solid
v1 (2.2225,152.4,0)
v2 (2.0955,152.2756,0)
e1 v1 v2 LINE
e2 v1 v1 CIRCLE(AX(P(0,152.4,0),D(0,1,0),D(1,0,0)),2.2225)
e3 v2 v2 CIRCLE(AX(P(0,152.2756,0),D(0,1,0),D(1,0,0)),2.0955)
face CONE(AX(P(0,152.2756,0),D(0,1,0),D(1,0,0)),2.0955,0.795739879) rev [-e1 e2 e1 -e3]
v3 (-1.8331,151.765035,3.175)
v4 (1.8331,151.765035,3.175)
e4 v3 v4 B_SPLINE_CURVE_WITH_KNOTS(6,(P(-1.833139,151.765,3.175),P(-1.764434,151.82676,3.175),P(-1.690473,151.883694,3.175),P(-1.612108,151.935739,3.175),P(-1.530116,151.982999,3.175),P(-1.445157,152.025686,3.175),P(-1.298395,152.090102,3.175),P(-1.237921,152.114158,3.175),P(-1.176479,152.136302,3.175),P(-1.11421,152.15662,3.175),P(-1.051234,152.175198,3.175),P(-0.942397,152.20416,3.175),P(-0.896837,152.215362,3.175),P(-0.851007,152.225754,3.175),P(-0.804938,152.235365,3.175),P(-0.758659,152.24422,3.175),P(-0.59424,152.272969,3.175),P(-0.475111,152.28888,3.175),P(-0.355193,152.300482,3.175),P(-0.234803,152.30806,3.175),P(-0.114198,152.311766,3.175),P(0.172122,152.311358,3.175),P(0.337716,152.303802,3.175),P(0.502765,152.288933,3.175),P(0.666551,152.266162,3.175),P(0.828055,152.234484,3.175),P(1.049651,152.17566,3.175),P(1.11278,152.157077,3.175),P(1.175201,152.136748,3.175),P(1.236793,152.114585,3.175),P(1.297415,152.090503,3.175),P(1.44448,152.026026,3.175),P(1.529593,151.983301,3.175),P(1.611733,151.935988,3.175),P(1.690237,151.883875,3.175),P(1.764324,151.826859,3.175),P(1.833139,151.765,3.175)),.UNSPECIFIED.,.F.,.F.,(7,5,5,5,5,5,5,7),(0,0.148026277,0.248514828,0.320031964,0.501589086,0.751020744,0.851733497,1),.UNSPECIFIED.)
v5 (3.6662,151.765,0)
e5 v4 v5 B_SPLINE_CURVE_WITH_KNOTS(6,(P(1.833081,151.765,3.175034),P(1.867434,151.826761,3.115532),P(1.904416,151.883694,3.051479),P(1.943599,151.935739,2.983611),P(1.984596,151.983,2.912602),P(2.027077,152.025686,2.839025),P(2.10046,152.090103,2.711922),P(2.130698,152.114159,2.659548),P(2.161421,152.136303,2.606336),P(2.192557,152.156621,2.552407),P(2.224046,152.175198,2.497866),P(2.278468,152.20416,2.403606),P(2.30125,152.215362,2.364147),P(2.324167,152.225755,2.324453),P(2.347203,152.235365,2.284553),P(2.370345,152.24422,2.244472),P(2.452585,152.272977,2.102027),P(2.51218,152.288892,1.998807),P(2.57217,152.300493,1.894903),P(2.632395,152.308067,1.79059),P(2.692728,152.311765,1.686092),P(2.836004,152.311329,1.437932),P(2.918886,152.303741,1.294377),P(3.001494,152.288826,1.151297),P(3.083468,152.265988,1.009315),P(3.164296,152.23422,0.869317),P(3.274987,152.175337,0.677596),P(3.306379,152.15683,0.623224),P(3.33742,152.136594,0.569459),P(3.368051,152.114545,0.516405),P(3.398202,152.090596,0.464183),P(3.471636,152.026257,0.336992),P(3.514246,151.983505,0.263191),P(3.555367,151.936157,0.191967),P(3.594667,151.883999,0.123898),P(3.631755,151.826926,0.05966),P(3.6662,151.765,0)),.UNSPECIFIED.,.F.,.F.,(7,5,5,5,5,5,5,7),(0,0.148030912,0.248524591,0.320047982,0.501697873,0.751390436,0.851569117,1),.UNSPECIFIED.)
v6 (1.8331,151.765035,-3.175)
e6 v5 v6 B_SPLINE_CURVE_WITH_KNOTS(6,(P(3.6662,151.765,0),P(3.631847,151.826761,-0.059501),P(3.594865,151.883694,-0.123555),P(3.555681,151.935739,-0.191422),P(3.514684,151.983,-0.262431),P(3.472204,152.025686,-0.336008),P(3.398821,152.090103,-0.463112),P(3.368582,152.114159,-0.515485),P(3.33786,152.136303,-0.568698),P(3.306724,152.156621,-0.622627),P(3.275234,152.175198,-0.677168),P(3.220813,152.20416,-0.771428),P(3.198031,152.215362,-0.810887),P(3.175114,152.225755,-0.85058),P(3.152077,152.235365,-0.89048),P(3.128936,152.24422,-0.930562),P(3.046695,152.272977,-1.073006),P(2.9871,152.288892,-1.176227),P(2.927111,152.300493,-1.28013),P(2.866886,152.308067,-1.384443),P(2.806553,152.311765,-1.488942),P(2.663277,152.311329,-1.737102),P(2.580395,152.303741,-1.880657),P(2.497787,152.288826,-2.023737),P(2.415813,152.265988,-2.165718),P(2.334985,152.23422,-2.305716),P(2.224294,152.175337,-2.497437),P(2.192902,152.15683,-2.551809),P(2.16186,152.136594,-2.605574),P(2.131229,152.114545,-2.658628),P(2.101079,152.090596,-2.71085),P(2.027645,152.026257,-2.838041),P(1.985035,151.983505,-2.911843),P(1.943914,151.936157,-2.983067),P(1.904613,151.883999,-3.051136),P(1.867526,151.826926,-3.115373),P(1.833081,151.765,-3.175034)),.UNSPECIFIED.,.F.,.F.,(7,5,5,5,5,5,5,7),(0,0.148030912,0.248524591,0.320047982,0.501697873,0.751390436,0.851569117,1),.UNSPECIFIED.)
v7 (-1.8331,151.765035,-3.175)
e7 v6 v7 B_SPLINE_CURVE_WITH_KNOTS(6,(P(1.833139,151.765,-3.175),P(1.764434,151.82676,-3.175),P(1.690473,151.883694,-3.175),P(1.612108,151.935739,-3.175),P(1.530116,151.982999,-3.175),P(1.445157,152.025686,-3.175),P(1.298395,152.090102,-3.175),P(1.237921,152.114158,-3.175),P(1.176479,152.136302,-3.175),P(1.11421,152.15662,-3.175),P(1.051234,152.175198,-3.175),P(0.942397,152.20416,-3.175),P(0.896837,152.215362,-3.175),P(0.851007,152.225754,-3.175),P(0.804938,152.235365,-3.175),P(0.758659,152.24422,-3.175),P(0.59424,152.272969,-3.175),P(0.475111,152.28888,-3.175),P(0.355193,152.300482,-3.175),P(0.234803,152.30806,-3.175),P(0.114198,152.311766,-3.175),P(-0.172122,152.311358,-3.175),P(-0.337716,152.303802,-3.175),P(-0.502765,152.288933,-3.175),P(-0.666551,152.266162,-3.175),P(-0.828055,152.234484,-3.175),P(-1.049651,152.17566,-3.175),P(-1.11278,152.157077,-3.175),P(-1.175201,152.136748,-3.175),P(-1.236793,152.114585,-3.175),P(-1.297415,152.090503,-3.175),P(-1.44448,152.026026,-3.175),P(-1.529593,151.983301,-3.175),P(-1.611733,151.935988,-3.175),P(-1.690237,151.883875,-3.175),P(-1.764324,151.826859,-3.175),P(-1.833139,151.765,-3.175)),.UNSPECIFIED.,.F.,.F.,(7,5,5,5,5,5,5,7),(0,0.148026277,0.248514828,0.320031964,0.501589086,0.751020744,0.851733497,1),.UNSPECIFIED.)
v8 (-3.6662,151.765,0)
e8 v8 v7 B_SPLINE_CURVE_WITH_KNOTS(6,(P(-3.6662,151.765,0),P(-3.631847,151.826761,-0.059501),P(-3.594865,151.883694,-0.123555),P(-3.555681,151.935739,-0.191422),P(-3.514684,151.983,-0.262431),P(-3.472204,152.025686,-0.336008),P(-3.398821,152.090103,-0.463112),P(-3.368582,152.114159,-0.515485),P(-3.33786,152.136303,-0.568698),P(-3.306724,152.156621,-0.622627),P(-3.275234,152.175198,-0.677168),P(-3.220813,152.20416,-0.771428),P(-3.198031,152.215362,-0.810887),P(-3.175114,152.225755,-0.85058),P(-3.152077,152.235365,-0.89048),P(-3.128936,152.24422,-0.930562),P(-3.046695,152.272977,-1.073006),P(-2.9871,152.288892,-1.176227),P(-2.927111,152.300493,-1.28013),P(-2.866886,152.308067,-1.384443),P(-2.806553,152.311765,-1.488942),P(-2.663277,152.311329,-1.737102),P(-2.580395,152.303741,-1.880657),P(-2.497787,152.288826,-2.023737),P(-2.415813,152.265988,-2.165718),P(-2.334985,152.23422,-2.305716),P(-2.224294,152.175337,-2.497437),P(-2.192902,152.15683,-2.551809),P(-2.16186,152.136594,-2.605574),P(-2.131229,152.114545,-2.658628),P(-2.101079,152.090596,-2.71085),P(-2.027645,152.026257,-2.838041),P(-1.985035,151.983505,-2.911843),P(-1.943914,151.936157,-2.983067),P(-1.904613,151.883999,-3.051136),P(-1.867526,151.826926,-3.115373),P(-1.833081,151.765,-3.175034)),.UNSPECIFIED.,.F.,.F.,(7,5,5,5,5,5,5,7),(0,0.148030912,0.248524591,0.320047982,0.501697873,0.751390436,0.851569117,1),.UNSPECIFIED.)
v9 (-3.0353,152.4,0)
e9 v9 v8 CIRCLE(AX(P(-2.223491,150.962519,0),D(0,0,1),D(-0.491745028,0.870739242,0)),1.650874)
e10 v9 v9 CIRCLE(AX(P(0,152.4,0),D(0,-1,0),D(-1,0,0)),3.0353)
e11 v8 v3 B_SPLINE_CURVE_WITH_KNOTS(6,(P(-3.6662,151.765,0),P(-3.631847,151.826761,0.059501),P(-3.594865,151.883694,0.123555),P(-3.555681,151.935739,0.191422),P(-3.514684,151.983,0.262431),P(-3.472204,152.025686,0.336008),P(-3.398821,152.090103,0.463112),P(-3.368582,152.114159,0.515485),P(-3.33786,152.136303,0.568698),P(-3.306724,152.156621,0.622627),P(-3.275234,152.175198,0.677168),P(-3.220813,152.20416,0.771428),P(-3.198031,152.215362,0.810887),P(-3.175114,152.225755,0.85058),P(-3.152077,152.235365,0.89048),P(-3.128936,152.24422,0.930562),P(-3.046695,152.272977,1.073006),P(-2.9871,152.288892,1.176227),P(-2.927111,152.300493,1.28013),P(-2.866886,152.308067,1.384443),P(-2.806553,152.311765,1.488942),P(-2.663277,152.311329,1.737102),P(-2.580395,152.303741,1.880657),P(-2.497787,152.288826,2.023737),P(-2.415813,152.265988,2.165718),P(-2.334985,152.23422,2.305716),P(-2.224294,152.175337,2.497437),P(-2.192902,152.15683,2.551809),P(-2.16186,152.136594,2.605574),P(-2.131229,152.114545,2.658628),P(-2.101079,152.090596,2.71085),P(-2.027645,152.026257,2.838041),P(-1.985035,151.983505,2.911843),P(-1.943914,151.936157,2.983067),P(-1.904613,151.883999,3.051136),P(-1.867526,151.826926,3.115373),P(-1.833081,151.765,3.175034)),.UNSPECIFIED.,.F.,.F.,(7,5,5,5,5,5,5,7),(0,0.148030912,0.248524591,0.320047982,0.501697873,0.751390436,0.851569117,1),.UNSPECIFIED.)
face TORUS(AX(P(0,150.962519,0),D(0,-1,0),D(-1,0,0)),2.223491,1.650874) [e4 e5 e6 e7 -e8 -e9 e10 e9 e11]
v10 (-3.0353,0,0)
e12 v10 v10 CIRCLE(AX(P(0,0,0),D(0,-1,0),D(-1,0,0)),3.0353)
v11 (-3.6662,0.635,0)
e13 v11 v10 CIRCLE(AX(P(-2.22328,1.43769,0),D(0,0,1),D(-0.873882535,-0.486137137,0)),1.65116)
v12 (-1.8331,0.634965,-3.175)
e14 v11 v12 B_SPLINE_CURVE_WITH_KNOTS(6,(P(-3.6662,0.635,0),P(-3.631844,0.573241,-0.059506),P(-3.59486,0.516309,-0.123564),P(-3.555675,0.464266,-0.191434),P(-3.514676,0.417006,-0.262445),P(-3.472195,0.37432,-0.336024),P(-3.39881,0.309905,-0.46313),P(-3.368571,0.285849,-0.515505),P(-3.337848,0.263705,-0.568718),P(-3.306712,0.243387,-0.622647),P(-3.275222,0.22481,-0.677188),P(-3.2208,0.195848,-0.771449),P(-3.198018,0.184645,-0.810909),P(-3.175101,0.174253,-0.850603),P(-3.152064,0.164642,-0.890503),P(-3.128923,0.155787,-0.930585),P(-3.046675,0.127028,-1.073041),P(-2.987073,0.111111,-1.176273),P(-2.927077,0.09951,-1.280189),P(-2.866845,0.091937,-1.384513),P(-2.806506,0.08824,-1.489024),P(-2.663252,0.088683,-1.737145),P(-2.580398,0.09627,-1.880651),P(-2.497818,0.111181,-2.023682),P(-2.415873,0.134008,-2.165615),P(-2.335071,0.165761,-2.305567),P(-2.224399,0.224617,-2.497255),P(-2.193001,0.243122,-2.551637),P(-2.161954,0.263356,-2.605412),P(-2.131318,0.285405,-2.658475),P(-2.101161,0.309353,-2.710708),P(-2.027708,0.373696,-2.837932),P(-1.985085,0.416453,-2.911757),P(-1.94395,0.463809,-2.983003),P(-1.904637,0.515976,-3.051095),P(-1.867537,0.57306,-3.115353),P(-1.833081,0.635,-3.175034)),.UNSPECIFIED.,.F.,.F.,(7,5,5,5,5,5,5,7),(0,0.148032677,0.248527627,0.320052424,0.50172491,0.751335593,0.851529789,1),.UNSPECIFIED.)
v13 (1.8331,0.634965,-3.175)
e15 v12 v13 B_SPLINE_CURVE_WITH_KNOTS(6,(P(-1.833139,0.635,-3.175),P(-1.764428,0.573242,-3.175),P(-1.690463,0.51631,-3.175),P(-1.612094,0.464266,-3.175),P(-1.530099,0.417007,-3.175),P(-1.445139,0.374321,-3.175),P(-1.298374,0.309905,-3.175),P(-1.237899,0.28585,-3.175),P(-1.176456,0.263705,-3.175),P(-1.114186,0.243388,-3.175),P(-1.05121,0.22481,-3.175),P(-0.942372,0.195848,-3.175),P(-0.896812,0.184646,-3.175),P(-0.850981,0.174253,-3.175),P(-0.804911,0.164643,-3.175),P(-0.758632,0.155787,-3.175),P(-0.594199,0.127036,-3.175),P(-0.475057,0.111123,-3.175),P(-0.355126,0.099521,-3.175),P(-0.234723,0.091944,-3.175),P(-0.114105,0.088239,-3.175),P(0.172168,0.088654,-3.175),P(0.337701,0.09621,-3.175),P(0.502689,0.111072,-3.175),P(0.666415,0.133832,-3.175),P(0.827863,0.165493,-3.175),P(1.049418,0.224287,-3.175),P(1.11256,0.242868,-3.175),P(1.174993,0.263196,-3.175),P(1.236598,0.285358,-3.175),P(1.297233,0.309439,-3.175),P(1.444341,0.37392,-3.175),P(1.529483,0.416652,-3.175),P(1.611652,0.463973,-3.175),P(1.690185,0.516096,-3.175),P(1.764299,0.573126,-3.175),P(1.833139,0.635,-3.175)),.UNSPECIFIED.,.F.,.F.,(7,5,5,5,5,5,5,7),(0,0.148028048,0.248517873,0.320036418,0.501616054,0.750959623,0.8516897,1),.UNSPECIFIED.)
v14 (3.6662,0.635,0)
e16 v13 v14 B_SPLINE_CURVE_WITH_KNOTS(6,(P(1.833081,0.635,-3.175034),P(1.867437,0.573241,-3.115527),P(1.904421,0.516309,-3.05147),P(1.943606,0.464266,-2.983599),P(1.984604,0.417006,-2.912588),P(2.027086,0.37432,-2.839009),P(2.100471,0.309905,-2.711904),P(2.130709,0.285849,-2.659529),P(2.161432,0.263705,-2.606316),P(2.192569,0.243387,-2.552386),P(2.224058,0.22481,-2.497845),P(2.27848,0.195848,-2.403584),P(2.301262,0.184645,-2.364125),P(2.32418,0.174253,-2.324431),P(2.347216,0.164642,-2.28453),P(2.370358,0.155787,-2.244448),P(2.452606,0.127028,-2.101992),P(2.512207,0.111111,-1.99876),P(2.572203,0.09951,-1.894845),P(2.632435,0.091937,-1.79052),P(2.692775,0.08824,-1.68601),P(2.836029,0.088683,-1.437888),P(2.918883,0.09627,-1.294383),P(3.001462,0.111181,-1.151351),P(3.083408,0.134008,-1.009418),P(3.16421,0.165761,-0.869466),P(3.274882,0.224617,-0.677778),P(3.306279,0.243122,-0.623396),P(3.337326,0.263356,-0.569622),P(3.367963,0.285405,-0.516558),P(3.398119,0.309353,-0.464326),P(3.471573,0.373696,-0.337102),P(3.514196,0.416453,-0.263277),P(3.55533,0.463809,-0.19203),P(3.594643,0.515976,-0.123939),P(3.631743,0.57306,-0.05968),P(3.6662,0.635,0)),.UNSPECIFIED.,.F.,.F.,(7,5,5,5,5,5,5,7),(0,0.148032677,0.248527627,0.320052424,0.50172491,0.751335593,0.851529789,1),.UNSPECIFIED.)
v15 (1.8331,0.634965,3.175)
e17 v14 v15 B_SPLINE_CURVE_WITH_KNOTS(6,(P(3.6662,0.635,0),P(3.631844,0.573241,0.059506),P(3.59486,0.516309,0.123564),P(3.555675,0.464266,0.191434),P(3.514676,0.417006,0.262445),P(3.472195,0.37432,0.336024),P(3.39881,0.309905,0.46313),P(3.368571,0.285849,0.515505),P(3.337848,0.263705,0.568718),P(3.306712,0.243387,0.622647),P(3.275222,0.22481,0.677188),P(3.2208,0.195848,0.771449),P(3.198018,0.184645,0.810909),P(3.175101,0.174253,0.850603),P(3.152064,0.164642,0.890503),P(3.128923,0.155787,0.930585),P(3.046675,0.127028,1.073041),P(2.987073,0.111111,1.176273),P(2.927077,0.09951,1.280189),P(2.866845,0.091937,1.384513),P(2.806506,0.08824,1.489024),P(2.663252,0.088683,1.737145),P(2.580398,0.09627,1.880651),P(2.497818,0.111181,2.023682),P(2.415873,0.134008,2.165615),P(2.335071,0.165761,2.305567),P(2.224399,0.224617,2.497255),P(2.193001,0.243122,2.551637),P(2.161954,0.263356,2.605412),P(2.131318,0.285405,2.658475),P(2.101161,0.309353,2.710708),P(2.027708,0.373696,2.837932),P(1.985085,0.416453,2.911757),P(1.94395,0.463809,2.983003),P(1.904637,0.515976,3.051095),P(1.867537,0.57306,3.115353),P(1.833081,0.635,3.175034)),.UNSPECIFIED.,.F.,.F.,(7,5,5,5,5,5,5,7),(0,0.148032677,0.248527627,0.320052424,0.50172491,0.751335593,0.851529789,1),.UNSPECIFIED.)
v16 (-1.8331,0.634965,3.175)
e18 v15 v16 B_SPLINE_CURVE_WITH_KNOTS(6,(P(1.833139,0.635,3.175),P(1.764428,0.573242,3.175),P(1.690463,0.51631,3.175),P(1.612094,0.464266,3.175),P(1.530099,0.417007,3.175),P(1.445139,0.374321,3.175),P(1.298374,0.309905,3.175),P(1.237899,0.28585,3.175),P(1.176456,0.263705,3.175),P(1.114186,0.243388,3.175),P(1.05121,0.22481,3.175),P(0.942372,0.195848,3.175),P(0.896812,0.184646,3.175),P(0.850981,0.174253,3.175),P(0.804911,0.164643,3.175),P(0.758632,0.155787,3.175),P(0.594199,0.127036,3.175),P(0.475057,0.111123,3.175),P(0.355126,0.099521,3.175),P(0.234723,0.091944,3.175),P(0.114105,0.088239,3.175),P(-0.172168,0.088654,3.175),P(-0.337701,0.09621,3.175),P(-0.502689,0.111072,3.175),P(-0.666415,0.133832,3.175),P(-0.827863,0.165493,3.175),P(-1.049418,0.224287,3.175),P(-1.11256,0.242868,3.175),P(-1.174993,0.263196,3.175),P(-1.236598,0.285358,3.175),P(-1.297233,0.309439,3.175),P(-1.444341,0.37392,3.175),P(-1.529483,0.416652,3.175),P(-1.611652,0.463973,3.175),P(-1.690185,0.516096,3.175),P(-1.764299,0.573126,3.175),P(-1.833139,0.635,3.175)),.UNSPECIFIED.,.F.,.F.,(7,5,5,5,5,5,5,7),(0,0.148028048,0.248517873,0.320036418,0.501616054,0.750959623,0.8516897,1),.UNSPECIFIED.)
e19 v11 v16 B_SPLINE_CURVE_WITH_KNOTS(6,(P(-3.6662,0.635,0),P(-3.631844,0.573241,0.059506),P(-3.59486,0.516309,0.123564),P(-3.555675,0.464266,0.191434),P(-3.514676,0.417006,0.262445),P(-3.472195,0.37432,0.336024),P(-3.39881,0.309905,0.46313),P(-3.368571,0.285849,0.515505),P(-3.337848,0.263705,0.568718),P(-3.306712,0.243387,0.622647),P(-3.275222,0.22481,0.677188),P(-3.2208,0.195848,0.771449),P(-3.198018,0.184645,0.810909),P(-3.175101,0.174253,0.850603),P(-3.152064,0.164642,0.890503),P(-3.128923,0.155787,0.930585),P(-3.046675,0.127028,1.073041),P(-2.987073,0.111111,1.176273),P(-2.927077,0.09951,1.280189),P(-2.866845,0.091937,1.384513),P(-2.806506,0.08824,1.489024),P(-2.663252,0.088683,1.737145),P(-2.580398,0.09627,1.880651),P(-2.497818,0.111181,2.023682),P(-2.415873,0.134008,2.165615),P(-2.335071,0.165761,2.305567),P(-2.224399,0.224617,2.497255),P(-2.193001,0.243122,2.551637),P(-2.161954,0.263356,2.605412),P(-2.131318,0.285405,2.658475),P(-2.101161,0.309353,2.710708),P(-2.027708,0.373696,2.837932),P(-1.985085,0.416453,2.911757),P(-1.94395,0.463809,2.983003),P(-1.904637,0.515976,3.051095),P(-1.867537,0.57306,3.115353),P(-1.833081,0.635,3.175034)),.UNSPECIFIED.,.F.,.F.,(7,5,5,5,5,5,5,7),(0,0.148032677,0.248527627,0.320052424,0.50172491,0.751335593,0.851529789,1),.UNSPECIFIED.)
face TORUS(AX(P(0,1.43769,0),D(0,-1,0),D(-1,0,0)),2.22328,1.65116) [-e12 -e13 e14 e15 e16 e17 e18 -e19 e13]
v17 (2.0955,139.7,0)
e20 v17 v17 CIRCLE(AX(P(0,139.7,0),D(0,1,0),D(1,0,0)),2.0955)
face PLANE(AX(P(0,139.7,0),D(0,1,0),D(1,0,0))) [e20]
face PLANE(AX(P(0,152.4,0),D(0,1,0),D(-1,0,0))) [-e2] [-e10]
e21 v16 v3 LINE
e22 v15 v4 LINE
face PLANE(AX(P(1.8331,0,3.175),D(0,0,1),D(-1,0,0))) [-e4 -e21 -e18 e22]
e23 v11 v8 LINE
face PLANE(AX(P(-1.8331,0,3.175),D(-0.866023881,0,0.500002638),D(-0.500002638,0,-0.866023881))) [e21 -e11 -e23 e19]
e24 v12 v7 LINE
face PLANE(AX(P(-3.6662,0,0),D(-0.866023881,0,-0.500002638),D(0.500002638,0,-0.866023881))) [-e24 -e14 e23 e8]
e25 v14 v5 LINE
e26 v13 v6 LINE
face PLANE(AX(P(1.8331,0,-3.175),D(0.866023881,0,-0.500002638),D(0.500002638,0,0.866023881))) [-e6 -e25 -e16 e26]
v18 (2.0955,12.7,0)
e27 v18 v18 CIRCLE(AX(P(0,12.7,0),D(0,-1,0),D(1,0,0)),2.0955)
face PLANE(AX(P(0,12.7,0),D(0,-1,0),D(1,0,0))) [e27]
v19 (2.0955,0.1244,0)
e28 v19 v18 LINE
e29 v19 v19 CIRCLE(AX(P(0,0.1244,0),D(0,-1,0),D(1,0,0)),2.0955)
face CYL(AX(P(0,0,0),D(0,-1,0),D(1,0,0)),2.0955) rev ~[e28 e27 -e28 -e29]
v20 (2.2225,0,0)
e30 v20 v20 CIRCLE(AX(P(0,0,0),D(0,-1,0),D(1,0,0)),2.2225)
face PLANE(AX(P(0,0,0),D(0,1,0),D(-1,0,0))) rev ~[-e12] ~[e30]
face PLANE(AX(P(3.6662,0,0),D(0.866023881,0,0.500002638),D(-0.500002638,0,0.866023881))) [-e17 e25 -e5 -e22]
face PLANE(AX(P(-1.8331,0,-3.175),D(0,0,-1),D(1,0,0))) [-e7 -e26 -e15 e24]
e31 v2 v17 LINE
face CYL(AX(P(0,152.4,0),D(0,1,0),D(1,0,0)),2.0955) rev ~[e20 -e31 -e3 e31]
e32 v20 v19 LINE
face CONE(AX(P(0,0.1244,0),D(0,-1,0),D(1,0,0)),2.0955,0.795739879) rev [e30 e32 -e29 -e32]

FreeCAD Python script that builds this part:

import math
import FreeCAD as App
import Part
import Sketcher

V = App.Vector
Q = App.Units.Quantity


def edges_at(feature, points):
    """Names of the edges that pass closest to the given points."""
    edges = feature.Shape.Edges
    near = lambda p: min(range(len(edges)), key=lambda i: edges[i].distToShape(Part.Vertex(*p))[0])
    return sorted({f"Edge{near(p) + 1}" for p in points})

doc = App.newDocument("Part")
body = doc.addObject("PartDesign::Body", "Body")

sketch1 = body.newObject("Sketcher::SketchObject", "Sketch")
sketch1.AttachmentSupport = (doc.getObject("XZ_Plane"), [""])
sketch1.MapMode = "FlatFace"
sketch1.addGeometry([
    Part.LineSegment(V(3.7, 0, 0), V(1.8, -3.2, 0)),
    Part.LineSegment(V(1.8, -3.2, 0), V(-1.8, -3.2, 0)),
    Part.LineSegment(V(-1.8, -3.2, 0), V(-3.7, 0, 0)),
    Part.LineSegment(V(-3.7, 0, 0), V(-1.8, 3.2, 0)),
    Part.LineSegment(V(-1.8, 3.2, 0), V(1.8, 3.2, 0)),
    Part.LineSegment(V(1.8, 3.2, 0), V(3.7, 0, 0)),
], False)
sketch1.addConstraint([
    Sketcher.Constraint("Coincident", 0, 2, 1, 1),
    Sketcher.Constraint("Coincident", 1, 2, 2, 1),
    Sketcher.Constraint("Coincident", 2, 2, 3, 1),
    Sketcher.Constraint("Coincident", 3, 2, 4, 1),
    Sketcher.Constraint("Coincident", 4, 2, 5, 1),
    Sketcher.Constraint("Coincident", 5, 2, 0, 1),
    Sketcher.Constraint("Horizontal", 1),
    Sketcher.Constraint("Horizontal", 4),
    Sketcher.Constraint("Symmetric", 0, 2, 3, 2, -1, 1),
    Sketcher.Constraint("Symmetric", 2, 2, 5, 2, -1, 1),
    Sketcher.Constraint("PointOnObject", 2, 2, -1),
    Sketcher.Constraint("Parallel", 2, 5),
    Sketcher.Constraint("Vertical", 1, 2, 3, 2),
    Sketcher.Constraint("DistanceY", 1, 2, 3, 2, Q("0.25 in")),
    Sketcher.Constraint("Angle", 0, Q("-120.0002 deg")),
    Sketcher.Constraint("DistanceX", 1, 2, 1, 1, Q("3.6662 mm")),
])
pad1 = body.newObject("PartDesign::Pad", "Pad")
pad1.Profile = sketch1
pad1.Length = Q("6 in")
pad1.Reversed = True

sketch2 = body.newObject("Sketcher::SketchObject", "Sketch001")
sketch2.AttachmentSupport = (doc.getObject("XZ_Plane"), [""])
sketch2.MapMode = "FlatFace"
sketch2.AttachmentOffset = App.Placement(V(0, 0, -6 * 25.4), App.Rotation())
sketch2.addGeometry(Part.Circle(V(0, 0, 0), V(0, 0, 1), 2.1), False)
sketch2.addConstraint([
    Sketcher.Constraint("Coincident", 0, 3, -1, 1),
    Sketcher.Constraint("Diameter", 0, Q("0.165 in")),
])
pocket1 = body.newObject("PartDesign::Pocket", "Pocket")
pocket1.Profile = sketch2
pocket1.Length = Q("0.5 in")
pocket1.Reversed = True

sketch3 = body.newObject("Sketcher::SketchObject", "Sketch002")
sketch3.AttachmentSupport = (doc.getObject("XZ_Plane"), [""])
sketch3.MapMode = "FlatFace"
sketch3.addGeometry(Part.Circle(V(0, 0, 0), V(0, 0, 1), 2.1), False)
sketch3.addConstraint([
    Sketcher.Constraint("Coincident", 0, 3, -1, 1),
    Sketcher.Constraint("Diameter", 0, Q("0.165 in")),
])
pocket2 = body.newObject("PartDesign::Pocket", "Pocket001")
pocket2.Profile = sketch3
pocket2.Length = Q("0.5 in")
doc.recompute()

chamfer = body.newObject("PartDesign::Chamfer", "Chamfer")
chamfer.Base = (pocket2, edges_at(pocket2, [(-2.095, 152.4, 0)]))
chamfer.ChamferType = "Two distances"
chamfer.Size = Q("0.005 in")
chamfer.Size2 = Q("0.0048976 in")
doc.recompute()

chamfer2 = body.newObject("PartDesign::Chamfer", "Chamfer001")
chamfer2.Base = (chamfer, edges_at(chamfer, [(-2.095, 0, 0)]))
chamfer2.ChamferType = "Two distances"
chamfer2.Size = Q("0.005 in")
chamfer2.Size2 = Q("0.0048976 in")

sketch4 = body.newObject("Sketcher::SketchObject", "Sketch003")
sketch4.AttachmentSupport = (doc.getObject("XY_Plane"), [""])
sketch4.MapMode = "FlatFace"
sketch4.addGeometry([
    Part.LineSegment(V(0, 152.4, 0), V(-6.4, 154.4, 0)),
    Part.LineSegment(V(-6.4, 154.4, 0), V(-3.7, 151.8, 0)),
    Part.ArcOfCircle(Part.Circle(V(-2.2, 151, 0), V(0, 0, 1), 1.7), math.radians(119), math.radians(151)),
    Part.LineSegment(V(-3, 152.4, 0), V(0, 152.4, 0)),
], False)
sketch4.addConstraint([
    Sketcher.Constraint("Coincident", 0, 2, 1, 1),
    Sketcher.Constraint("Coincident", 1, 2, 2, 2),
    Sketcher.Constraint("Coincident", 2, 1, 3, 1),
    Sketcher.Constraint("Coincident", 3, 2, 0, 1),
    Sketcher.Constraint("Horizontal", 3),
    Sketcher.Constraint("PointOnObject", 3, 2, -2),
    Sketcher.Constraint("Radius", 2, Q("0.065 in")),
    Sketcher.Constraint("DistanceX", 3, 1, 3, 2, Q("0.1195 in")),
    Sketcher.Constraint("DistanceY", -1, 1, 2, 1, Q("6 in")),
    Sketcher.Constraint("DistanceY", 1, 2, 2, 1, Q("0.025 in")),
    Sketcher.Constraint("Angle", 0, Q("162.8302 deg")),
    Sketcher.Constraint("DistanceX", 0, 2, 1, 2, Q("0.106 in")),
    Sketcher.Constraint("DistanceY", -1, 1, 2, 3, Q("5.9434 in")),
])
groove = body.newObject("PartDesign::Groove", "Groove")
groove.Profile = sketch4
groove.ReferenceAxis = (sketch4, ["V_Axis"])
groove.Angle = 360

sketch5 = body.newObject("Sketcher::SketchObject", "Sketch004")
sketch5.AttachmentSupport = (doc.getObject("XY_Plane"), [""])
sketch5.MapMode = "FlatFace"
sketch5.addGeometry([
    Part.LineSegment(V(-4.1, -0.9, 0), V(0, 0, 0)),
    Part.LineSegment(V(0, 0, 0), V(-3, 0, 0)),
    Part.ArcOfCircle(Part.Circle(V(-2.2, 1.4, 0), V(0, 0, 1), 1.7), math.radians(-151), math.radians(-119)),
    Part.LineSegment(V(-3.7, 0.6, 0), V(-4.1, -0.9, 0)),
], False)
sketch5.addConstraint([
    Sketcher.Constraint("Coincident", 0, 2, 1, 1),
    Sketcher.Constraint("Coincident", 1, 2, 2, 2),
    Sketcher.Constraint("Coincident", 2, 1, 3, 1),
    Sketcher.Constraint("Coincident", 3, 2, 0, 1),
    Sketcher.Constraint("Horizontal", 1),
    Sketcher.Constraint("Coincident", 0, 2, -1, 1),
    Sketcher.Constraint("Radius", 2, Q("0.065 in")),
    Sketcher.Constraint("DistanceX", 1, 2, 1, 1, Q("0.1195 in")),
    Sketcher.Constraint("DistanceY", -1, 1, 2, 1, Q("0.025 in")),
    Sketcher.Constraint("Distance", 3, Q("0.0619 in")),
    Sketcher.Constraint("DistanceY", -1, 1, 2, 3, Q("0.0566 in")),
    Sketcher.Constraint("DistanceY", 3, 2, -1, 1, Q("0.0343 in")),
])
groove2 = body.newObject("PartDesign::Groove", "Groove001")
groove2.Profile = sketch5
groove2.ReferenceAxis = (sketch5, ["V_Axis"])
groove2.Angle = 360

doc.recompute()
